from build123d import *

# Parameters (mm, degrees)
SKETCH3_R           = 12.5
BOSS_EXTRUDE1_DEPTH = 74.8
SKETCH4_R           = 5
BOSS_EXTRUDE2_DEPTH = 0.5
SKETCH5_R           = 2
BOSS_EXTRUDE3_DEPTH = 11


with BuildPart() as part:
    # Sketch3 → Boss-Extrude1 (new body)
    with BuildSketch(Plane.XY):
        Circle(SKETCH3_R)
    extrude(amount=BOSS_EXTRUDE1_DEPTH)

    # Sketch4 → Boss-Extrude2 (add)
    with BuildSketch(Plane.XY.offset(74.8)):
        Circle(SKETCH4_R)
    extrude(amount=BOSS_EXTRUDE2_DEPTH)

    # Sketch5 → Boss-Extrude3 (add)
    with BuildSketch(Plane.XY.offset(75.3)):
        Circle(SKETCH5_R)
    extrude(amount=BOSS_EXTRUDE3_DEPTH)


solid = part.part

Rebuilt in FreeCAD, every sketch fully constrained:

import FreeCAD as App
import Part
import Sketcher
Q = App.Units.Quantity

doc = App.newDocument("Part")
body = doc.addObject("PartDesign::Body", "Body")

# Sketch on XY plane
sketch1 = body.newObject("Sketcher::SketchObject", "Sketch")
sketch1.AttachmentSupport = (doc.getObject("XY_Plane"), [""])
sketch1.MapMode = "FlatFace"
sketch1.addGeometry(Part.Circle(App.Vector(0, 0, 0), App.Vector(0, 0, 1), 12), False)
sketch1.addConstraint([
    Sketcher.Constraint("Coincident", 0, 3, -1, 1),
    Sketcher.Constraint("Diameter", 0, Q("25 mm")),
])
pad1 = body.newObject("PartDesign::Pad", "Pad")
pad1.Profile = sketch1
pad1.Length = 74.8

# Sketch on XY plane
sketch2 = body.newObject("Sketcher::SketchObject", "Sketch001")
sketch2.AttachmentSupport = (doc.getObject("XY_Plane"), [""])
sketch2.MapMode = "FlatFace"
sketch2.AttachmentOffset = App.Placement(App.Vector(0, 0, 74.8), App.Rotation())
sketch2.addGeometry(Part.Circle(App.Vector(0, 0, 0), App.Vector(0, 0, 1), 5), False)
sketch2.addConstraint([
    Sketcher.Constraint("Coincident", 0, 3, -1, 1),
    Sketcher.Constraint("Diameter", 0, Q("10 mm")),
])
pad2 = body.newObject("PartDesign::Pad", "Pad001")
pad2.Profile = sketch2
pad2.Length = 0.5

# Sketch on XY plane
sketch3 = body.newObject("Sketcher::SketchObject", "Sketch002")
sketch3.AttachmentSupport = (doc.getObject("XY_Plane"), [""])
sketch3.MapMode = "FlatFace"
sketch3.AttachmentOffset = App.Placement(App.Vector(0, 0, 75.3), App.Rotation())
sketch3.addGeometry(Part.Circle(App.Vector(0, 0, 0), App.Vector(0, 0, 1), 2), False)
sketch3.addConstraint([
    Sketcher.Constraint("Coincident", 0, 3, -1, 1),
    Sketcher.Constraint("Diameter", 0, Q("4 mm")),
])
pad3 = body.newObject("PartDesign::Pad", "Pad002")
pad3.Profile = sketch3
pad3.Length = 11

doc.recompute()
